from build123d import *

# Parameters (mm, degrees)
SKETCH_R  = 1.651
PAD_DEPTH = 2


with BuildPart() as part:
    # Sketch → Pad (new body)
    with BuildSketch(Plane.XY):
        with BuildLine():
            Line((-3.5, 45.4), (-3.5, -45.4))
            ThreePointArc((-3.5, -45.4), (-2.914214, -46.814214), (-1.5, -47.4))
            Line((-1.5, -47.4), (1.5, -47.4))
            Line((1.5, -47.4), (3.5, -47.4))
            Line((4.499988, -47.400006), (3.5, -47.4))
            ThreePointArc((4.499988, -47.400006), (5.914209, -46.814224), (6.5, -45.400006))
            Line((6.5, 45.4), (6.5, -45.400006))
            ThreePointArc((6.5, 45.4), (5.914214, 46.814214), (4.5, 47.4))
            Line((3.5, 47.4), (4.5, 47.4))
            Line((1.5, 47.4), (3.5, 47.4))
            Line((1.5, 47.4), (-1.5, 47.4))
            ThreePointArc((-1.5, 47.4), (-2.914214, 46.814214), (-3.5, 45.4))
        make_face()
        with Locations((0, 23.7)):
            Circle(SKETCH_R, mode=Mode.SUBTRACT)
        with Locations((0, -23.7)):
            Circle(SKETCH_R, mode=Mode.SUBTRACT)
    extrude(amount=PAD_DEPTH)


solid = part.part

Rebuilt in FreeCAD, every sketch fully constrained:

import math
import FreeCAD as App
import Part
import Sketcher

V = App.Vector
Q = App.Units.Quantity

doc = App.newDocument("Part")
body = doc.addObject("PartDesign::Body", "Body")

# Sketch on XY plane
sketch1 = body.newObject("Sketcher::SketchObject", "Sketch")
sketch1.AttachmentSupport = (doc.getObject("XY_Plane"), [""])
sketch1.MapMode = "FlatFace"
sketch1.addGeometry([
    Part.LineSegment(V(-3.5, 45.4, 0), V(-3.5, -45.4, 0)),  # 0
    Part.ArcOfCircle(Part.Circle(V(-1.5, -45.4, 0), V(0, 0, 1), 2), math.radians(180), math.radians(270)),  # 1
    Part.LineSegment(V(-1.5, -47.4, 0), V(3.5, -47.4, 0)),  # 2
    Part.LineSegment(V(3.5, -47.4, 0), V(4.5, -47.4, 0)),  # 3
    Part.ArcOfCircle(Part.Circle(V(4.5, -45.4, 0), V(0, 0, 1), 2), math.radians(-90), math.radians(0)),  # 4
    Part.LineSegment(V(6.5, -45.4, 0), V(6.5, 45.4, 0)),  # 5
    Part.ArcOfCircle(Part.Circle(V(4.5, 45.4, 0), V(0, 0, 1), 2), math.radians(0), math.radians(90)),  # 6
    Part.LineSegment(V(4.5, 47.4, 0), V(-1.5, 47.4, 0)),  # 7
    Part.ArcOfCircle(Part.Circle(V(-1.5, 45.4, 0), V(0, 0, 1), 2), math.radians(90), math.radians(180)),  # 8
    Part.Circle(V(0, -23.7, 0), V(0, 0, 1), 1.7),  # 9
    Part.Circle(V(0, 23.7, 0), V(0, 0, 1), 1.7),  # 10
], False)
sketch1.addConstraint([
    Sketcher.Constraint("Tangent", 0, 2, 1, 1),
    Sketcher.Constraint("Tangent", 1, 2, 2, 1),
    Sketcher.Constraint("Coincident", 2, 2, 3, 1),
    Sketcher.Constraint("Tangent", 3, 2, 4, 1),
    Sketcher.Constraint("Tangent", 4, 2, 5, 1),
    Sketcher.Constraint("Tangent", 5, 2, 6, 1),
    Sketcher.Constraint("Tangent", 6, 2, 7, 1),
    Sketcher.Constraint("Tangent", 7, 2, 8, 1),
    Sketcher.Constraint("Tangent", 8, 2, 0, 1),
    Sketcher.Constraint("Vertical", 0),
    Sketcher.Constraint("Horizontal", 2),
    Sketcher.Constraint("Vertical", 5),
    Sketcher.Constraint("Horizontal", 7),
    Sketcher.Constraint("Equal", 1, 4),
    Sketcher.Constraint("Equal", 4, 6),
    Sketcher.Constraint("Equal", 6, 8),
    Sketcher.Constraint("Equal", 9, 10),
    Sketcher.Constraint("Symmetric", 9, 3, 10, 3, -1, 1),
    Sketcher.Constraint("PointOnObject", 9, 3, -2),
    Sketcher.Constraint("Radius", 1, Q("1.999999 mm")),
    Sketcher.Constraint("DistanceX", 2, 1, 2, 2, Q("5 mm")),
    Sketcher.Constraint("DistanceX", 7, 2, 7, 1, Q("6 mm")),
    Sketcher.Constraint("Diameter", 9, Q("3.302 mm")),
    Sketcher.Constraint("DistanceY", 0, 2, 0, 1, Q("90.8 mm")),
    Sketcher.Constraint("DistanceX", 1, 3, -1, 1, Q("1.500001 mm")),
    Sketcher.Constraint("DistanceY", 1, 3, -1, 1, Q("45.400001 mm")),
    Sketcher.Constraint("DistanceY", 9, 3, -1, 1, Q("23.7 mm")),
    Sketcher.Constraint("Distance", 3, Q("0.999988 mm")),
])
pad1 = body.newObject("PartDesign::Pad", "Pad")
pad1.Profile = sketch1
pad1.Length = 2

doc.recompute()
